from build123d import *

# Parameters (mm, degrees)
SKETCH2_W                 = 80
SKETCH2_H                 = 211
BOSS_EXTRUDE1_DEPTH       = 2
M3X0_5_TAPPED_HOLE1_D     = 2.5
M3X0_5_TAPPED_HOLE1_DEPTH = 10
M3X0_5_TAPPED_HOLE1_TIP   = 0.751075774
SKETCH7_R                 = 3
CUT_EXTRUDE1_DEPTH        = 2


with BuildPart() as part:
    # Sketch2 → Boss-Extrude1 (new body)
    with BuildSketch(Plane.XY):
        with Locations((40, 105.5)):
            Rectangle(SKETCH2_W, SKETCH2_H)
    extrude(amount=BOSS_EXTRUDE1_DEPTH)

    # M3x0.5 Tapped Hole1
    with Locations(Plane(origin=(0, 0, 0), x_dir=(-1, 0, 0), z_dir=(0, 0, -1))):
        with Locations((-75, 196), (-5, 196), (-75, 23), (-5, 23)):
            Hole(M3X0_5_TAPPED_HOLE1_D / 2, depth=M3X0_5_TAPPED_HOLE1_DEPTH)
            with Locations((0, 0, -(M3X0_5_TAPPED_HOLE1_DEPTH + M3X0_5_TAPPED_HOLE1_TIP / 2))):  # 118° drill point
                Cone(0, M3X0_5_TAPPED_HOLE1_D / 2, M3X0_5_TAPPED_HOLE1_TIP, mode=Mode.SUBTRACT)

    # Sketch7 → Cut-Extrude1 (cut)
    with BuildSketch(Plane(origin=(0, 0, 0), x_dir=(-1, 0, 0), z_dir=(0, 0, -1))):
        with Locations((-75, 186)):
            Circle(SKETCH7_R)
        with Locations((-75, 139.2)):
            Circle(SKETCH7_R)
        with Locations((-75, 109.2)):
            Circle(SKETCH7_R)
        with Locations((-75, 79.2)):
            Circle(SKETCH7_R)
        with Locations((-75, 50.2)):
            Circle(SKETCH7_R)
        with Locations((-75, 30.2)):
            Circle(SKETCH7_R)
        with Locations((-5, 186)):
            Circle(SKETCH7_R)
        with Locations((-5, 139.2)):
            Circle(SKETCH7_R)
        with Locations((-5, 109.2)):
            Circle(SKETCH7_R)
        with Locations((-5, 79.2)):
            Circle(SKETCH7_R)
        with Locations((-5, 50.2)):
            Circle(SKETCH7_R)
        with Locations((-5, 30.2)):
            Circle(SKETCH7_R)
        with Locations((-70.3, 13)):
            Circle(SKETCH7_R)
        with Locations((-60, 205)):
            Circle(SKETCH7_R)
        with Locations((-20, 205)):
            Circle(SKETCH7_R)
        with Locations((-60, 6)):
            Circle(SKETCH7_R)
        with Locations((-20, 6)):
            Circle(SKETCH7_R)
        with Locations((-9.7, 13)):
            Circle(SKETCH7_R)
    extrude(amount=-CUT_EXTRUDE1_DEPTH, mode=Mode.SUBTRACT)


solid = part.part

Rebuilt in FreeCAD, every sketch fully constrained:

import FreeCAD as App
import Part
import Sketcher

V = App.Vector

doc = App.newDocument("Part")
body = doc.addObject("PartDesign::Body", "Body")

# Sketch on XY plane
sketch1 = body.newObject("Sketcher::SketchObject", "Sketch")
sketch1.AttachmentSupport = (doc.getObject("XY_Plane"), [""])
sketch1.MapMode = "FlatFace"
sketch1.addGeometry(Part.LineSegment(V(0, 211, 0), V(0, 0, 0)), False)
sketch1.addGeometry(Part.LineSegment(V(0, 0, 0), V(80, 0, 0)), False)
sketch1.addGeometry(Part.LineSegment(V(80, 0, 0), V(80, 211, 0)), False)
sketch1.addGeometry(Part.LineSegment(V(80, 211, 0), V(0, 211, 0)), False)
sketch1.addConstraint(Sketcher.Constraint("Coincident", 0, 2, 1, 1))
sketch1.addConstraint(Sketcher.Constraint("Coincident", 1, 2, 2, 1))
sketch1.addConstraint(Sketcher.Constraint("Coincident", 2, 2, 3, 1))
sketch1.addConstraint(Sketcher.Constraint("Coincident", 3, 2, 0, 1))
sketch1.addConstraint(Sketcher.Constraint("Vertical", 0))
sketch1.addConstraint(Sketcher.Constraint("Horizontal", 1))
sketch1.addConstraint(Sketcher.Constraint("Vertical", 2))
sketch1.addConstraint(Sketcher.Constraint("Horizontal", 3))
sketch1.addConstraint(Sketcher.Constraint("Coincident", 0, 2, -1, 1))
sketch1.addConstraint(Sketcher.Constraint("DistanceX", 1, 1, 1, 2, 80.0))
sketch1.addConstraint(Sketcher.Constraint("DistanceY", 0, 2, 0, 1, 211.0))
pad1 = body.newObject("PartDesign::Pad", "Pad")
pad1.Profile = sketch1
pad1.Length = 2

# Sketch on XY plane
sketch2 = body.newObject("Sketcher::SketchObject", "Sketch001")
sketch2.AttachmentSupport = (doc.getObject("XY_Plane"), [""])
sketch2.MapMode = "FlatFace"
sketch2.addGeometry(Part.Circle(V(75, 196, 0), V(0, 0, 1), 1.2), False)
sketch2.addGeometry(Part.Circle(V(5, 196, 0), V(0, 0, 1), 1.2), False)
sketch2.addGeometry(Part.Circle(V(75, 23, 0), V(0, 0, 1), 1.2), False)
sketch2.addGeometry(Part.Circle(V(5, 23, 0), V(0, 0, 1), 1.2), False)
sketch2.addConstraint(Sketcher.Constraint("Equal", 0, 1))
sketch2.addConstraint(Sketcher.Constraint("Equal", 1, 2))
sketch2.addConstraint(Sketcher.Constraint("Equal", 2, 3))
sketch2.addConstraint(Sketcher.Constraint("Horizontal", 0, 3, 1, 3))
sketch2.addConstraint(Sketcher.Constraint("Horizontal", 2, 3, 3, 3))
sketch2.addConstraint(Sketcher.Constraint("Vertical", 0, 3, 2, 3))
sketch2.addConstraint(Sketcher.Constraint("Vertical", 1, 3, 3, 3))
sketch2.addConstraint(Sketcher.Constraint("Diameter", 0, 2.5))
sketch2.addConstraint(Sketcher.Constraint("DistanceX", -1, 1, 0, 3, 75.0))
sketch2.addConstraint(Sketcher.Constraint("DistanceY", -1, 1, 0, 3, 196.0))
sketch2.addConstraint(Sketcher.Constraint("DistanceX", -1, 1, 1, 3, 5.0))
sketch2.addConstraint(Sketcher.Constraint("DistanceY", -1, 1, 2, 3, 23.0))
doc.recompute()
hole = body.newObject("PartDesign::Hole", "Hole")
hole.Profile = sketch2
hole.ThreadType = "None"
hole.Diameter = 2.5
hole.DepthType = "Dimension"
hole.Depth = 10
hole.DrillPoint = "Angled"
hole.DrillPointAngle = 118
hole.Reversed = True

# Sketch on XY plane
sketch3 = body.newObject("Sketcher::SketchObject", "Sketch002")
sketch3.AttachmentSupport = (doc.getObject("XY_Plane"), [""])
sketch3.MapMode = "FlatFace"
sketch3.addGeometry(Part.Circle(V(75, 186, 0), V(0, 0, 1), 3), False)
sketch3.addGeometry(Part.Circle(V(75, 139.2, 0), V(0, 0, 1), 3), False)
sketch3.addGeometry(Part.Circle(V(75, 109.2, 0), V(0, 0, 1), 3), False)
sketch3.addGeometry(Part.Circle(V(75, 79.2, 0), V(0, 0, 1), 3), False)
sketch3.addGeometry(Part.Circle(V(75, 50.2, 0), V(0, 0, 1), 3), False)
sketch3.addGeometry(Part.Circle(V(75, 30.2, 0), V(0, 0, 1), 3), False)
sketch3.addGeometry(Part.Circle(V(5, 186, 0), V(0, 0, 1), 3), False)
sketch3.addGeometry(Part.Circle(V(5, 139.2, 0), V(0, 0, 1), 3), False)
sketch3.addGeometry(Part.Circle(V(5, 109.2, 0), V(0, 0, 1), 3), False)
sketch3.addGeometry(Part.Circle(V(5, 79.2, 0), V(0, 0, 1), 3), False)
sketch3.addGeometry(Part.Circle(V(5, 50.2, 0), V(0, 0, 1), 3), False)
sketch3.addGeometry(Part.Circle(V(5, 30.2, 0), V(0, 0, 1), 3), False)
sketch3.addGeometry(Part.Circle(V(70.3, 13, 0), V(0, 0, 1), 3), False)
sketch3.addGeometry(Part.Circle(V(60, 205, 0), V(0, 0, 1), 3), False)
sketch3.addGeometry(Part.Circle(V(20, 205, 0), V(0, 0, 1), 3), False)
sketch3.addGeometry(Part.Circle(V(60, 6, 0), V(0, 0, 1), 3), False)
sketch3.addGeometry(Part.Circle(V(20, 6, 0), V(0, 0, 1), 3), False)
sketch3.addGeometry(Part.Circle(V(9.7, 13, 0), V(0, 0, 1), 3), False)
sketch3.addConstraint(Sketcher.Constraint("Equal", 0, 1))
sketch3.addConstraint(Sketcher.Constraint("Equal", 1, 2))
sketch3.addConstraint(Sketcher.Constraint("Equal", 2, 3))
sketch3.addConstraint(Sketcher.Constraint("Equal", 3, 4))
sketch3.addConstraint(Sketcher.Constraint("Equal", 4, 5))
sketch3.addConstraint(Sketcher.Constraint("Equal", 5, 6))
sketch3.addConstraint(Sketcher.Constraint("Equal", 6, 7))
sketch3.addConstraint(Sketcher.Constraint("Equal", 7, 8))
sketch3.addConstraint(Sketcher.Constraint("Equal", 8, 9))
sketch3.addConstraint(Sketcher.Constraint("Equal", 9, 10))
sketch3.addConstraint(Sketcher.Constraint("Equal", 10, 11))
sketch3.addConstraint(Sketcher.Constraint("Equal", 11, 12))
sketch3.addConstraint(Sketcher.Constraint("Equal", 12, 13))
sketch3.addConstraint(Sketcher.Constraint("Equal", 13, 14))
sketch3.addConstraint(Sketcher.Constraint("Equal", 14, 15))
sketch3.addConstraint(Sketcher.Constraint("Equal", 15, 16))
sketch3.addConstraint(Sketcher.Constraint("Equal", 16, 17))
sketch3.addConstraint(Sketcher.Constraint("Horizontal", 0, 3, 6, 3))
sketch3.addConstraint(Sketcher.Constraint("Horizontal", 1, 3, 7, 3))
sketch3.addConstraint(Sketcher.Constraint("Horizontal", 2, 3, 8, 3))
sketch3.addConstraint(Sketcher.Constraint("Horizontal", 3, 3, 9, 3))
sketch3.addConstraint(Sketcher.Constraint("Horizontal", 4, 3, 10, 3))
sketch3.addConstraint(Sketcher.Constraint("Horizontal", 5, 3, 11, 3))
sketch3.addConstraint(Sketcher.Constraint("Horizontal", 13, 3, 14, 3))
sketch3.addConstraint(Sketcher.Constraint("Horizontal", 15, 3, 16, 3))
sketch3.addConstraint(Sketcher.Constraint("Horizontal", 12, 3, 17, 3))
sketch3.addConstraint(Sketcher.Constraint("Vertical", 0, 3, 1, 3))
sketch3.addConstraint(Sketcher.Constraint("Vertical", 1, 3, 2, 3))
sketch3.addConstraint(Sketcher.Constraint("Vertical", 2, 3, 3, 3))
sketch3.addConstraint(Sketcher.Constraint("Vertical", 3, 3, 4, 3))
sketch3.addConstraint(Sketcher.Constraint("Vertical", 4, 3, 5, 3))
sketch3.addConstraint(Sketcher.Constraint("Vertical", 6, 3, 7, 3))
sketch3.addConstraint(Sketcher.Constraint("Vertical", 7, 3, 8, 3))
sketch3.addConstraint(Sketcher.Constraint("Vertical", 8, 3, 9, 3))
sketch3.addConstraint(Sketcher.Constraint("Vertical", 9, 3, 10, 3))
sketch3.addConstraint(Sketcher.Constraint("Vertical", 10, 3, 11, 3))
sketch3.addConstraint(Sketcher.Constraint("Vertical", 13, 3, 15, 3))
sketch3.addConstraint(Sketcher.Constraint("Vertical", 14, 3, 16, 3))
sketch3.addConstraint(Sketcher.Constraint("Diameter", 0, 6.0))
sketch3.addConstraint(Sketcher.Constraint("DistanceX", -1, 1, 0, 3, 75.0))
sketch3.addConstraint(Sketcher.Constraint("DistanceY", -1, 1, 0, 3, 186.0))
sketch3.addConstraint(Sketcher.Constraint("DistanceX", -1, 1, 6, 3, 5.0))
sketch3.addConstraint(Sketcher.Constraint("DistanceY", -1, 1, 12, 3, 13.0))
sketch3.addConstraint(Sketcher.Constraint("DistanceX", -1, 1, 13, 3, 60.0))
sketch3.addConstraint(Sketcher.Constraint("DistanceY", -1, 1, 13, 3, 205.0))
sketch3.addConstraint(Sketcher.Constraint("DistanceX", -1, 1, 14, 3, 20.0))
sketch3.addConstraint(Sketcher.Constraint("DistanceY", -1, 1, 15, 3, 6.0))
sketch3.addConstraint(Sketcher.Constraint("DistanceY", 2, 3, 1, 3, 30.0))
sketch3.addConstraint(Sketcher.Constraint("DistanceY", 3, 3, 2, 3, 30.0))
sketch3.addConstraint(Sketcher.Constraint("DistanceY", 4, 3, 3, 3, 29.0))
sketch3.addConstraint(Sketcher.Constraint("DistanceY", 5, 3, 4, 3, 20.0))
sketch3.addConstraint(Sketcher.Constraint("DistanceY", -1, 1, 1, 3, 139.2))
sketch3.addConstraint(Sketcher.Constraint("DistanceX", -1, 1, 12, 3, 70.3))
sketch3.addConstraint(Sketcher.Constraint("DistanceX", -1, 1, 17, 3, 9.7))
pocket1 = body.newObject("PartDesign::Pocket", "Pocket")
pocket1.Profile = sketch3
pocket1.Length = 2
pocket1.Reversed = True

doc.recompute()
